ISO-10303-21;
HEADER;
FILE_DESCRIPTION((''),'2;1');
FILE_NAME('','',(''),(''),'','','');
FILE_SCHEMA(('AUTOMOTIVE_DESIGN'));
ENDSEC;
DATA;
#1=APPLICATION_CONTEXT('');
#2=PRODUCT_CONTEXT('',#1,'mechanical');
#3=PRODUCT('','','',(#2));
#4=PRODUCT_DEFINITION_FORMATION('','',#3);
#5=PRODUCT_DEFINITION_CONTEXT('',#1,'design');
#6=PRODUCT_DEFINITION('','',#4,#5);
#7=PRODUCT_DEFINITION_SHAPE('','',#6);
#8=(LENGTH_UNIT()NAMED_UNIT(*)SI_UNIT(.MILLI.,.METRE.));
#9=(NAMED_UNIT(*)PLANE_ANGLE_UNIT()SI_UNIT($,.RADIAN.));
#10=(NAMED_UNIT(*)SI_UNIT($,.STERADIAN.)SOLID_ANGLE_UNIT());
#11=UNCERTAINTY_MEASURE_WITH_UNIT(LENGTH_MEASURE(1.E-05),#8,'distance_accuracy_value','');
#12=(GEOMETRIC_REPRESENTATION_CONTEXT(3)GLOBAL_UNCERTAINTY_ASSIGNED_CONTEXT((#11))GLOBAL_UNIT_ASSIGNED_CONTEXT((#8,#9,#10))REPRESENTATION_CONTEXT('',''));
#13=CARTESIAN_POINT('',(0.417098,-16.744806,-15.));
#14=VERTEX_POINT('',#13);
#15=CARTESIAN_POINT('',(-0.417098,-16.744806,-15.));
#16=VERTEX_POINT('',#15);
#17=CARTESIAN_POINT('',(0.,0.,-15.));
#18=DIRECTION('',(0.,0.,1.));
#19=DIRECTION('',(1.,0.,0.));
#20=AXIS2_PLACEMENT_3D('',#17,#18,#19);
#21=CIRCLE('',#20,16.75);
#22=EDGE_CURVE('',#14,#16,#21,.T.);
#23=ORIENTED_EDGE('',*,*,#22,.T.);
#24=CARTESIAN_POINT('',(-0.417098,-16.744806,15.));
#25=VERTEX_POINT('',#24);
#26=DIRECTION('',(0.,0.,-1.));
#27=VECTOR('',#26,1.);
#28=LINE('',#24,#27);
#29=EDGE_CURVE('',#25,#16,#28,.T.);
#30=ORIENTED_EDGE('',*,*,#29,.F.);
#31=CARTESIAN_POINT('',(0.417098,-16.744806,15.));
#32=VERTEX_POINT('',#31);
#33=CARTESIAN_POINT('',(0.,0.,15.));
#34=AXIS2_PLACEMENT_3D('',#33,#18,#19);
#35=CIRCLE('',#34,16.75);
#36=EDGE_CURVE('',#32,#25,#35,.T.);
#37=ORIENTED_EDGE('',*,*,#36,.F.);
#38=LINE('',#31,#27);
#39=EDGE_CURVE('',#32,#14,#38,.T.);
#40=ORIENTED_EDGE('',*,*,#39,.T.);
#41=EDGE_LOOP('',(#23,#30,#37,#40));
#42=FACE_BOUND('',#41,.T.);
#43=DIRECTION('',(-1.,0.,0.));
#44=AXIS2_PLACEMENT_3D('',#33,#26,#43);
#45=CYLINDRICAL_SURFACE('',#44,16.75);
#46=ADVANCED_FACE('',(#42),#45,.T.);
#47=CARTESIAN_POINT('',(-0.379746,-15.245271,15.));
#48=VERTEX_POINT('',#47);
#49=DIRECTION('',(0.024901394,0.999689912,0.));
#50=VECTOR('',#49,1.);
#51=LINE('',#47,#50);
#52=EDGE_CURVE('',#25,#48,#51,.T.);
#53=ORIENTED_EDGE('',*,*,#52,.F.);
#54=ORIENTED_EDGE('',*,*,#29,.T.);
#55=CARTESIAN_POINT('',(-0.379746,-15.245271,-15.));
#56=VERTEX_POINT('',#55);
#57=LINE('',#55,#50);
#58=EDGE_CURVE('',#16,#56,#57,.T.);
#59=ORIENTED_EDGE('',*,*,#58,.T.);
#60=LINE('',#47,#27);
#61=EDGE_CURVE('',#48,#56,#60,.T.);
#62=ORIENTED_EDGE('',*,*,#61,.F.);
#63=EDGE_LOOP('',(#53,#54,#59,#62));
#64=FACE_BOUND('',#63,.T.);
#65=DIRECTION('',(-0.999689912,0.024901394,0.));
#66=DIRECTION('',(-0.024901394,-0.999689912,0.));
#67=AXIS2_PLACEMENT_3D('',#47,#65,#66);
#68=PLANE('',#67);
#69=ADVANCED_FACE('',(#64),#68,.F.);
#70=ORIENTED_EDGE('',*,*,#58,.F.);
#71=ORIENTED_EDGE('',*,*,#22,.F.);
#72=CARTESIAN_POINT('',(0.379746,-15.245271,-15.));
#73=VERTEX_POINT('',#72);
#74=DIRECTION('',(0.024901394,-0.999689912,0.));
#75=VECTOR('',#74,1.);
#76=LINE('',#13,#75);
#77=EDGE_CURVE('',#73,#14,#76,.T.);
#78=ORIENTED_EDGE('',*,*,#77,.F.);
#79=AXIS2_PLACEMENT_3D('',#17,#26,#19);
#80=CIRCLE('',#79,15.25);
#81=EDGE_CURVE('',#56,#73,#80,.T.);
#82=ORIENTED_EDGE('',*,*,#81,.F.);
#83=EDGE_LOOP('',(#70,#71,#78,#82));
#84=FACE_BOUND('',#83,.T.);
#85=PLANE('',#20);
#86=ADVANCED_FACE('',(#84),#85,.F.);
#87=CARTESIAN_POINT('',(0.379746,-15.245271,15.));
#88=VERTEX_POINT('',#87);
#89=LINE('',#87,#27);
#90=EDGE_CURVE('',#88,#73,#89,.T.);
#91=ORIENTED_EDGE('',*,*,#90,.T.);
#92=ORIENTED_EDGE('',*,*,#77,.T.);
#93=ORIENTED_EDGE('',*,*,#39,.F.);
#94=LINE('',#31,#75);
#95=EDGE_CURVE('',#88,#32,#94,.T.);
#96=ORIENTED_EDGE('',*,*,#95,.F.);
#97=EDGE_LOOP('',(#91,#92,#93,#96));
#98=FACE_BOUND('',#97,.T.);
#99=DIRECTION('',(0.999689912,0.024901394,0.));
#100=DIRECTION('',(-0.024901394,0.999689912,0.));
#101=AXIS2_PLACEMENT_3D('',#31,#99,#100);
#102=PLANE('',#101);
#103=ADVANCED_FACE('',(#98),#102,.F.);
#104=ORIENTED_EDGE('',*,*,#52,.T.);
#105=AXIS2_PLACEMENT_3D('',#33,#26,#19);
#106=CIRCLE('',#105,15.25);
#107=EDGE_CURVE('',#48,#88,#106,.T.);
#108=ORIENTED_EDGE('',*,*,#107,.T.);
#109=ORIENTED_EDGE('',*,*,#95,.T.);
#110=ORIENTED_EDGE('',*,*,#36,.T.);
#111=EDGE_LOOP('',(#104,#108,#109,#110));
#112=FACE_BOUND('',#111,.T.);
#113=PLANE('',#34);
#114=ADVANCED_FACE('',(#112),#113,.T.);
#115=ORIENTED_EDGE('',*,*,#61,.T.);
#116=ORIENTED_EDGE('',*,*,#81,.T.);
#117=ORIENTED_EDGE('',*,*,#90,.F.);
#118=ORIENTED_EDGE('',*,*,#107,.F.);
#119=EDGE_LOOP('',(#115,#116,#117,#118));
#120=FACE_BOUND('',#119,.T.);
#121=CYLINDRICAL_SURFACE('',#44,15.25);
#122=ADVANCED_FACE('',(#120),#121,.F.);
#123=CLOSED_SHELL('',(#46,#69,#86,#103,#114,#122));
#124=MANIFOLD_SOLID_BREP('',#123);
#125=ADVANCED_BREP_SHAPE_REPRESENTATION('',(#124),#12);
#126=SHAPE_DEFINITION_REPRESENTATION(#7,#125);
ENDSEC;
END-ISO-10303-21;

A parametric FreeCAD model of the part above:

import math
import FreeCAD as App
import Part
import Sketcher
from FreeCAD import Vector
Q = App.Units.Quantity

doc = App.newDocument("Part")
params = doc.addObject("Spreadsheet::Sheet", "Params")
for row, (alias, value) in enumerate([
    ("sketch1_radius", "15.25 mm"),
    ("sketch1_radius2", "16.75 mm"),
    ("pad1_length", "30 mm"),
], start=1):
    params.set(f"A{row}", alias)
    params.set(f"B{row}", "=" + value)
    params.setAlias(f"B{row}", alias)

body = doc.addObject("PartDesign::Body", "Body")

sketch1 = body.newObject("Sketcher::SketchObject", "Sketch")
sketch1.AttachmentSupport = (doc.getObject("XY_Plane"), [""])
sketch1.MapMode = "FlatFace"
sketch1.addGeometry(Part.LineSegment(Vector(-0.4, -16.7, 0), Vector(-0.4, -15.2, 0)), False)
sketch1.addGeometry(Part.ArcOfCircle(Part.Circle(Vector(0, 0, 0), Vector(0, 0, 1), 15.2), math.radians(-89), math.radians(269)), False)
sketch1.addGeometry(Part.LineSegment(Vector(0.4, -15.2, 0), Vector(0.4, -16.7, 0)), False)
sketch1.addGeometry(Part.ArcOfCircle(Part.Circle(Vector(0, 0, 0), Vector(0, 0, 1), 16.8), math.radians(-89), math.radians(269)), False)
sketch1.addConstraint(Sketcher.Constraint("Coincident", 0, 2, 1, 2))
sketch1.addConstraint(Sketcher.Constraint("Coincident", 1, 1, 2, 1))
sketch1.addConstraint(Sketcher.Constraint("Coincident", 2, 2, 3, 1))
sketch1.addConstraint(Sketcher.Constraint("Coincident", 3, 2, 0, 1))
sketch1.addConstraint(Sketcher.Constraint("Coincident", 1, 3, -1, 1))
sketch1.addConstraint(Sketcher.Constraint("Coincident", 3, 3, -1, 1))
sketch1.addConstraint(Sketcher.Constraint("Horizontal", 0, 2, 1, 1))
sketch1.addConstraint(Sketcher.Constraint("Horizontal", 2, 2, 3, 2))
sketch1.addConstraint(Sketcher.Constraint("Radius", 1, Q("15.25 mm")))
sketch1.addConstraint(Sketcher.Constraint("Radius", 3, Q("16.75 mm")))
sketch1.addConstraint(Sketcher.Constraint("DistanceX", -1, 1, 2, 2, Q("0.417098 mm")))
sketch1.addConstraint(Sketcher.Constraint("DistanceY", 0, 2, -1, 1, Q("15.245271 mm")))
sketch1.setExpression("Constraints[8]", "Params.sketch1_radius")
sketch1.setExpression("Constraints[9]", "Params.sketch1_radius2")
pad1 = body.newObject("PartDesign::Pad", "Pad")
pad1.Profile = sketch1
pad1.setExpression("Length", "Params.pad1_length")
pad1.Midplane = True

doc.recompute()
